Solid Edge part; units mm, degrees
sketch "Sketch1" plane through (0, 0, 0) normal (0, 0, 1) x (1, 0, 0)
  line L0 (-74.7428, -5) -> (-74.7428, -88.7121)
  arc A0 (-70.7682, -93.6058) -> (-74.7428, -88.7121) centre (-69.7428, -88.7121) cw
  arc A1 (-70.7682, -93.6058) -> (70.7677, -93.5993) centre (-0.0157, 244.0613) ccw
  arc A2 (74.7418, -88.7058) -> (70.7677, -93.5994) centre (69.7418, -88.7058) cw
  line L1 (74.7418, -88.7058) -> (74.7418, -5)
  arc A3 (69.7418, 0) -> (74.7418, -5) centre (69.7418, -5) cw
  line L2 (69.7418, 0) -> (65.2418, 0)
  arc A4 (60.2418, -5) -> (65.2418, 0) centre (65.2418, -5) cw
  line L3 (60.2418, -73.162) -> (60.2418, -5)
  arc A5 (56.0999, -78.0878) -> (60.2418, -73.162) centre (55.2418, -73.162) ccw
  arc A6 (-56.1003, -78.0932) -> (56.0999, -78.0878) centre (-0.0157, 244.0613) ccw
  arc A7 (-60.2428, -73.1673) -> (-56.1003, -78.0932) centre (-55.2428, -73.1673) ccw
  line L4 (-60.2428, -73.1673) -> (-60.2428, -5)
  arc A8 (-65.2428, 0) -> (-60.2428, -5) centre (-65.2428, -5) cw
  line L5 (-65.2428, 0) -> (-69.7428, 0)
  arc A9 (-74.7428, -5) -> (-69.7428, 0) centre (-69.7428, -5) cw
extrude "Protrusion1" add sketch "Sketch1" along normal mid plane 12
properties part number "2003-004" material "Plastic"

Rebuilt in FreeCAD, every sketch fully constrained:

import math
import FreeCAD as App
import Part
import Sketcher

V = App.Vector

doc = App.newDocument("Part")
body = doc.addObject("PartDesign::Body", "Body")

# Sketch on XY plane
sketch1 = body.newObject("Sketcher::SketchObject", "Sketch")
sketch1.AttachmentSupport = (doc.getObject("XY_Plane"), [""])
sketch1.MapMode = "FlatFace"
sketch1.addGeometry([
    Part.ArcOfCircle(Part.Circle(V(-69.7428, -5, 0), V(0, 0, 1), 5), math.radians(90), math.radians(180)),  # 0
    Part.LineSegment(V(-74.7428, -5, 0), V(-74.7428, -88.7121, 0)),  # 1
    Part.ArcOfCircle(Part.Circle(V(-69.7428, -88.7121, 0), V(0, 0, 1), 4.999974), math.radians(180), math.radians(258.165757)),  # 2
    Part.ArcOfCircle(Part.Circle(V(-0.0157, 244.0613, 0), V(0, 0, 1), 344.999981), math.radians(-101.834166), math.radians(-78.16059)),  # 3
    Part.ArcOfCircle(Part.Circle(V(69.7418, -88.7058, 0), V(0, 0, 1), 5), math.radians(-78.159679), math.radians(0)),  # 4
    Part.LineSegment(V(74.7418, -88.7058, 0), V(74.7418, -5, 0)),  # 5
    Part.ArcOfCircle(Part.Circle(V(69.7418, -5, 0), V(0, 0, 1), 5), math.radians(0), math.radians(90)),  # 6
    Part.LineSegment(V(69.7418, 0, 0), V(65.2418, 0, 0)),  # 7
    Part.ArcOfCircle(Part.Circle(V(65.2418, -5, 0), V(0, 0, 1), 5), math.radians(90), math.radians(180)),  # 8
    Part.LineSegment(V(60.2418, -5, 0), V(60.2418, -73.162, 0)),  # 9
    Part.ArcOfCircle(Part.Circle(V(55.2418, -73.162, 0), V(0, 0, 1), 4.999984), math.radians(-80.117946), math.radians(0)),  # 10
    Part.ArcOfCircle(Part.Circle(V(-0.0157, 244.0613, 0), V(0, 0, 1), 327.000006), math.radians(-99.875773), math.radians(-80.118714)),  # 11
    Part.ArcOfCircle(Part.Circle(V(-55.2428, -73.1673, 0), V(0, 0, 1), 5), math.radians(180), math.radians(260.124916)),  # 12
    Part.LineSegment(V(-60.2428, -73.1673, 0), V(-60.2428, -5, 0)),  # 13
    Part.ArcOfCircle(Part.Circle(V(-65.2428, -5, 0), V(0, 0, 1), 5), math.radians(0), math.radians(90)),  # 14
    Part.LineSegment(V(-65.2428, 0, 0), V(-69.7428, 0, 0)),  # 15
], False)
sketch1.addConstraint([
    Sketcher.Constraint("Coincident", 0, 2, 1, 1),
    Sketcher.Constraint("Coincident", 1, 2, 2, 1),
    Sketcher.Constraint("Coincident", 2, 2, 3, 1),
    Sketcher.Constraint("Coincident", 3, 2, 4, 1),
    Sketcher.Constraint("Coincident", 4, 2, 5, 1),
    Sketcher.Constraint("Coincident", 5, 2, 6, 1),
    Sketcher.Constraint("Coincident", 6, 2, 7, 1),
    Sketcher.Constraint("Coincident", 7, 2, 8, 1),
    Sketcher.Constraint("Coincident", 8, 2, 9, 1),
    Sketcher.Constraint("Coincident", 9, 2, 10, 2),
    Sketcher.Constraint("Coincident", 10, 1, 11, 2),
    Sketcher.Constraint("Coincident", 11, 1, 12, 2),
    Sketcher.Constraint("Coincident", 12, 1, 13, 1),
    Sketcher.Constraint("Coincident", 13, 2, 14, 1),
    Sketcher.Constraint("Coincident", 14, 2, 15, 1),
    Sketcher.Constraint("Coincident", 15, 2, 0, 1),
    Sketcher.Constraint("Vertical", 1),
    Sketcher.Constraint("Vertical", 5),
    Sketcher.Constraint("Horizontal", 7),
    Sketcher.Constraint("Vertical", 9),
    Sketcher.Constraint("Vertical", 13),
    Sketcher.Constraint("Horizontal", 15),
    Sketcher.Constraint("Coincident", 11, 3, 3, 3),
    Sketcher.Constraint("PointOnObject", 6, 2, -1),
    Sketcher.Constraint("PointOnObject", 14, 2, -1),
    Sketcher.Constraint("Radius", 0, 5.0),
    Sketcher.Constraint("Radius", 2, 5.0),
    Sketcher.Constraint("Radius", 3, 345.0),
    Sketcher.Constraint("Radius", 4, 5.0),
    Sketcher.Constraint("Radius", 6, 5.0),
    Sketcher.Constraint("Radius", 8, 5.0),
    Sketcher.Constraint("Radius", 10, 5.0),
    Sketcher.Constraint("Radius", 11, 327.0),
    Sketcher.Constraint("Radius", 12, 5.0),
    Sketcher.Constraint("Radius", 14, 5.0),
    Sketcher.Constraint("DistanceX", 7, 2, 7, 1, 4.5),
    Sketcher.Constraint("DistanceX", 15, 2, 15, 1, 4.5),
    Sketcher.Constraint("DistanceY", 0, 2, -1, 1, 5.0),
    Sketcher.Constraint("DistanceY", 5, 2, -1, 1, 5.0),
    Sketcher.Constraint("DistanceY", 8, 2, -1, 1, 5.0),
    Sketcher.Constraint("DistanceY", 13, 2, -1, 1, 5.0),
    Sketcher.Constraint("DistanceX", 6, 2, 5, 2, 5.0),
    Sketcher.Constraint("DistanceX", 10, 3, 7, 2, 10.0),
    Sketcher.Constraint("DistanceX", 14, 2, 13, 2, 5.0),
    Sketcher.Constraint("DistanceX", 0, 2, 15, 2, 5.0),
    Sketcher.Constraint("DistanceX", -1, 1, 10, 1, 56.1),
    Sketcher.Constraint("DistanceY", 1, 2, 1, 1, 83.712),
    Sketcher.Constraint("DistanceY", 9, 2, 9, 1, 68.162),
    Sketcher.Constraint("DistanceY", 2, 3, 10, 3, 15.55),
    Sketcher.Constraint("DistanceY", 5, 1, 5, 2, 83.7058),
    Sketcher.Constraint("DistanceY", 13, 1, 13, 2, 68.1673),
    Sketcher.Constraint("DistanceY", 2, 3, -1, 1, 88.712),
    Sketcher.Constraint("DistanceX", 0, 3, 3, 3, 69.727),
    Sketcher.Constraint("DistanceX", 4, 3, 3, 2, 1.026),
    Sketcher.Constraint("DistanceX", 10, 3, 10, 1, 0.858),
    Sketcher.Constraint("DistanceY", 11, 1, 12, 3, 4.926),
    Sketcher.Constraint("DistanceX", 2, 2, 11, 1, 14.668),
])
pad1 = body.newObject("PartDesign::Pad", "Pad")
pad1.Profile = sketch1
pad1.Length = 12
pad1.Midplane = True

doc.recompute()
